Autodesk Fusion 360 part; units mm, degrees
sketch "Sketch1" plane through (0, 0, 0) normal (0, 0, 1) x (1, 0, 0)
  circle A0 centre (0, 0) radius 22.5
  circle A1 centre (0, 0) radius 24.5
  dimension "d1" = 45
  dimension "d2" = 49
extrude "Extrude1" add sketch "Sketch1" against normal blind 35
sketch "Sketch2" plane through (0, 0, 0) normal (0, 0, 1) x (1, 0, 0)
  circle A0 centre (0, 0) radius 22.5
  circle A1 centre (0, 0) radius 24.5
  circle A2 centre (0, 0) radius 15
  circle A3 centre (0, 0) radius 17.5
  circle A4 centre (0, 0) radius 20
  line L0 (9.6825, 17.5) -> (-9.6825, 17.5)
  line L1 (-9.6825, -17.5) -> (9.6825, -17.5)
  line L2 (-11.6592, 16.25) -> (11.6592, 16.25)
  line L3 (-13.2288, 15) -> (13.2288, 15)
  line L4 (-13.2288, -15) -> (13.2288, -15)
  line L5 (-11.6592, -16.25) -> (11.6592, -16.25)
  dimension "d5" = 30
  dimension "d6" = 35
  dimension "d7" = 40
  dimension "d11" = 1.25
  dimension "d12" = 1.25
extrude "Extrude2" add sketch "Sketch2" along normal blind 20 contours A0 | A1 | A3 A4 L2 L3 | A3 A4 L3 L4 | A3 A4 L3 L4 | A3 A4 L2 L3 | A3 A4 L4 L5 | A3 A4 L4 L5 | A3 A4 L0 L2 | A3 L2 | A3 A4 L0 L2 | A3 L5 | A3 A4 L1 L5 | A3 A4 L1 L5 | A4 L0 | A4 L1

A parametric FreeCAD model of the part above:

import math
import FreeCAD as App
import Part
import Sketcher

V = App.Vector
Q = App.Units.Quantity

doc = App.newDocument("Part")
params = doc.addObject("Spreadsheet::Sheet", "Params")
for row, (alias, value) in enumerate([
    ("sketch1_diameter", "49 mm"),
    ("sketch1_diameter2", "45 mm"),
    ("pad1_length", "35 mm"),
    ("sketch2_radius", "17.5 mm"),
    ("sketch2_diameter", "49 mm"),
    ("pad2_length", "20 mm"),
], start=1):
    params.set(f"A{row}", alias)
    params.set(f"B{row}", "=" + value)
    params.setAlias(f"B{row}", alias)

body = doc.addObject("PartDesign::Body", "Body")

# Sketch on XY plane
sketch1 = doc.addObject("Sketcher::SketchObject", "Sketch")
body.addObject(sketch1)
sketch1.AttachmentSupport = (doc.XY_Plane, [""])
sketch1.MapMode = "FlatFace"
sketch1.addGeometry([
    Part.Circle(V(0, 0, 0), V(0, 0, 1), 24),
    Part.Circle(V(0, 0, 0), V(0, 0, 1), 22),
], False)
sketch1.addConstraint([
    Sketcher.Constraint("Coincident", 0, 3, -1, 1),
    Sketcher.Constraint("Coincident", 1, 3, -1, 1),
    Sketcher.Constraint("Diameter", 0, Q("49 mm")),
    Sketcher.Constraint("Diameter", 1, Q("45 mm")),
])
sketch1.setExpression("Constraints[2]", "Params.sketch1_diameter")
sketch1.setExpression("Constraints[3]", "Params.sketch1_diameter2")
pad1 = doc.addObject("PartDesign::Pad", "Pad")
body.addObject(pad1)
pad1.Profile = sketch1
pad1.setExpression("Length", "Params.pad1_length")
pad1.Reversed = True

# Sketch on XY plane
sketch2 = doc.addObject("Sketcher::SketchObject", "Sketch001")
body.addObject(sketch2)
sketch2.AttachmentSupport = (doc.XY_Plane, [""])
sketch2.MapMode = "FlatFace"
sketch2.addGeometry([
    Part.Circle(V(0, 0, 0), V(0, 0, 1), 24),  # 0
    Part.LineSegment(V(-6, 16, 0), V(6, 16, 0)),  # 1
    Part.ArcOfCircle(Part.Circle(V(0, 0, 0), V(0, 0, 1), 18), math.radians(-68), math.radians(68)),  # 2
    Part.LineSegment(V(6, -16, 0), V(-6, -16, 0)),  # 3
    Part.ArcOfCircle(Part.Circle(V(0, 0, 0), V(0, 0, 1), 18), math.radians(112), math.radians(248)),  # 4
], False)
sketch2.addConstraint([
    Sketcher.Constraint("Coincident", 1, 2, 2, 2),
    Sketcher.Constraint("Coincident", 2, 1, 3, 1),
    Sketcher.Constraint("Coincident", 3, 2, 4, 2),
    Sketcher.Constraint("Coincident", 4, 1, 1, 1),
    Sketcher.Constraint("Horizontal", 1),
    Sketcher.Constraint("Horizontal", 3),
    Sketcher.Constraint("Coincident", 0, 3, -1, 1),
    Sketcher.Constraint("Coincident", 2, 3, -1, 1),
    Sketcher.Constraint("Coincident", 4, 3, -1, 1),
    Sketcher.Constraint("Equal", 2, 4),
    Sketcher.Constraint("Vertical", 1, 2, 2, 1),
    Sketcher.Constraint("Radius", 2, Q("17.5 mm")),
    Sketcher.Constraint("Diameter", 0, Q("49 mm")),
    Sketcher.Constraint("DistanceY", 2, 1, 1, 2, Q("32.5 mm")),
])
sketch2.setExpression("Constraints[11]", "Params.sketch2_radius")
sketch2.setExpression("Constraints[12]", "Params.sketch2_diameter")
pad2 = doc.addObject("PartDesign::Pad", "Pad001")
body.addObject(pad2)
pad2.Profile = sketch2
pad2.setExpression("Length", "Params.pad2_length")

doc.recompute()
